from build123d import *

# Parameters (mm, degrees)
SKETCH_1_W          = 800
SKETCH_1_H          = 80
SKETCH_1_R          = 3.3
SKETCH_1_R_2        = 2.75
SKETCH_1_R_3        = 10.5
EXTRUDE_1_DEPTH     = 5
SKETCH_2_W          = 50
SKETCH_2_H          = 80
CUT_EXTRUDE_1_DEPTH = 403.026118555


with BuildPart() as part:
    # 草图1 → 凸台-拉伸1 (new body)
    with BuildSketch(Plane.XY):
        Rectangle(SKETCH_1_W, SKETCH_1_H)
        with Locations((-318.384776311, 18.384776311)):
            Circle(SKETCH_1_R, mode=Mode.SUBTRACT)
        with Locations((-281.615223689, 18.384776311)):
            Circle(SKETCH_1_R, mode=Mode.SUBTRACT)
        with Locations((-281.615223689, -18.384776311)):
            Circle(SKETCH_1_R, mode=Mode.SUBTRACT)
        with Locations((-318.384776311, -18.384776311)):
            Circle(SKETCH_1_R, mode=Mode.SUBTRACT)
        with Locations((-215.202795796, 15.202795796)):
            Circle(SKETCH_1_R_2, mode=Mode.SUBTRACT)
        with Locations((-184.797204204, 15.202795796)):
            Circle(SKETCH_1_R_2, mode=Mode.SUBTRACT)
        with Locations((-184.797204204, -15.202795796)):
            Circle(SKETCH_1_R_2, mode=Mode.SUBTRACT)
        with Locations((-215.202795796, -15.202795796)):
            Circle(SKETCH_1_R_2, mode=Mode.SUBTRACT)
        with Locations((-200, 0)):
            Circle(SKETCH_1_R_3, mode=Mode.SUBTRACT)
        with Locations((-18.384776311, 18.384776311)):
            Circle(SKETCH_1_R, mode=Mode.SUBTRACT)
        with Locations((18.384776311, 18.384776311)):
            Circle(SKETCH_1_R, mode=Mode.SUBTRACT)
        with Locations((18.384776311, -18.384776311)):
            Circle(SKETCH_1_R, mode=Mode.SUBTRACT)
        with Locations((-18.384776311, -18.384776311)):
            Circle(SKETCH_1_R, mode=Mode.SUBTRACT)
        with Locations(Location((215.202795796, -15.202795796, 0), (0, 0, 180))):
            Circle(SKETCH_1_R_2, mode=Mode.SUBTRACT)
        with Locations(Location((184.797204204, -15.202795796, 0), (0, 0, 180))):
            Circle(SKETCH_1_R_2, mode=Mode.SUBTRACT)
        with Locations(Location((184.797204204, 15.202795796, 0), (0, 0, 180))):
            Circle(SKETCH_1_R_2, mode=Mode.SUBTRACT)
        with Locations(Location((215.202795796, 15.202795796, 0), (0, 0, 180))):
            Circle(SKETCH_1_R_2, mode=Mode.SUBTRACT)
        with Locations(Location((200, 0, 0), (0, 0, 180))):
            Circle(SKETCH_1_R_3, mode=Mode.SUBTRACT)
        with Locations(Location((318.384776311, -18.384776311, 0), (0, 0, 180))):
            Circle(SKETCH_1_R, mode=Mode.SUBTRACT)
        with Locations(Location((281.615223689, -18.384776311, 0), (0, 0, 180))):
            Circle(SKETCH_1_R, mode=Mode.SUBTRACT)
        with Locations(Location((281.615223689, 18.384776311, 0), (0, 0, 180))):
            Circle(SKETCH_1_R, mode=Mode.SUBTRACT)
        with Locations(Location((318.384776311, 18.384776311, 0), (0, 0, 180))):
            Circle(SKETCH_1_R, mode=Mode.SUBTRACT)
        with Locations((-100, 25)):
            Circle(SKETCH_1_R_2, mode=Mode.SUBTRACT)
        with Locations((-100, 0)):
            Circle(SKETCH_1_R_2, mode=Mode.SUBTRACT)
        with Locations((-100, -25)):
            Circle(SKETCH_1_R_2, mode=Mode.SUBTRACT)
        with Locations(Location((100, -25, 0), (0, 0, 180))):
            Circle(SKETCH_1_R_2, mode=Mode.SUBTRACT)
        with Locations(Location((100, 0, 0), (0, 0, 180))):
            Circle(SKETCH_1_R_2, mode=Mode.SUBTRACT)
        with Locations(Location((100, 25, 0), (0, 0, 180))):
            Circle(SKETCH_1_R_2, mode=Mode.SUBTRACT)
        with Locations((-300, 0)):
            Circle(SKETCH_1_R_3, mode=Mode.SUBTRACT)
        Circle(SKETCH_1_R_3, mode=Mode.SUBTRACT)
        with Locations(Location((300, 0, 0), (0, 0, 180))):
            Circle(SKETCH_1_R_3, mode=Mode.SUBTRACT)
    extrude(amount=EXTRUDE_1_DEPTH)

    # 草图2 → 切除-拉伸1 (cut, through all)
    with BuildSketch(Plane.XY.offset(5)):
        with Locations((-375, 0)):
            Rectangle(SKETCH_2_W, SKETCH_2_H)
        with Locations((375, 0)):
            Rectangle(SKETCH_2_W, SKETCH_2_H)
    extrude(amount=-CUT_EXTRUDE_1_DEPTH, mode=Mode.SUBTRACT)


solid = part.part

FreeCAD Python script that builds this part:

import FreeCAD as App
import Part
import Sketcher

V = App.Vector
Q = App.Units.Quantity


def add_polygon(sketch, points):
    """Adds a closed chain of lines whose ends are joined by coincident constraints."""
    first, n = sketch.GeometryCount, len(points)
    for a, b in zip(points, points[1:] + points[:1]):
        sketch.addGeometry(Part.LineSegment(App.Vector(*a, 0), App.Vector(*b, 0)), False)
    for i in range(n):
        sketch.addConstraint(Sketcher.Constraint("Coincident", first + i, 2, first + (i + 1) % n, 1))

doc = App.newDocument("Part")
body = doc.addObject("PartDesign::Body", "Body")

# Sketch on XY plane
sketch1 = body.newObject("Sketcher::SketchObject", "Sketch")
sketch1.AttachmentSupport = (doc.getObject("XY_Plane"), [""])
sketch1.MapMode = "FlatFace"
add_polygon(sketch1, [(-400, 40), (-400, -40), (400, -40), (400, 40)])  # lines 0-3
sketch1.addGeometry(Part.Circle(V(-318.4, -18.4, 0), V(0, 0, 1), 3.3), False)  # 4
sketch1.addGeometry(Part.Circle(V(-281.6, -18.4, 0), V(0, 0, 1), 3.3), False)  # 5
sketch1.addGeometry(Part.Circle(V(-215.2, -15.2, 0), V(0, 0, 1), 2.8), False)  # 6
sketch1.addGeometry(Part.Circle(V(-184.8, -15.2, 0), V(0, 0, 1), 2.8), False)  # 7
sketch1.addGeometry(Part.Circle(V(-100, -25, 0), V(0, 0, 1), 2.8), False)  # 8
sketch1.addGeometry(Part.Circle(V(-18.4, -18.4, 0), V(0, 0, 1), 3.3), False)  # 9
sketch1.addGeometry(Part.Circle(V(100, -25, 0), V(0, 0, 1), 2.8), False)  # 10
sketch1.addGeometry(Part.Circle(V(18.4, -18.4, 0), V(0, 0, 1), 3.3), False)  # 11
sketch1.addGeometry(Part.Circle(V(184.8, -15.2, 0), V(0, 0, 1), 2.8), False)  # 12
sketch1.addGeometry(Part.Circle(V(215.2, -15.2, 0), V(0, 0, 1), 2.8), False)  # 13
sketch1.addGeometry(Part.Circle(V(281.6, -18.4, 0), V(0, 0, 1), 3.3), False)  # 14
sketch1.addGeometry(Part.Circle(V(318.4, -18.4, 0), V(0, 0, 1), 3.3), False)  # 15
sketch1.addGeometry(Part.Circle(V(-300, 0, 0), V(0, 0, 1), 10.5), False)  # 16
sketch1.addGeometry(Part.Circle(V(-200, 0, 0), V(0, 0, 1), 10.5), False)  # 17
sketch1.addGeometry(Part.Circle(V(-100, 0, 0), V(0, 0, 1), 2.8), False)  # 18
sketch1.addGeometry(Part.Circle(V(-318.4, 18.4, 0), V(0, 0, 1), 3.3), False)  # 19
sketch1.addGeometry(Part.Circle(V(-281.6, 18.4, 0), V(0, 0, 1), 3.3), False)  # 20
sketch1.addGeometry(Part.Circle(V(-215.2, 15.2, 0), V(0, 0, 1), 2.8), False)  # 21
sketch1.addGeometry(Part.Circle(V(-184.8, 15.2, 0), V(0, 0, 1), 2.8), False)  # 22
sketch1.addGeometry(Part.Circle(V(-18.4, 18.4, 0), V(0, 0, 1), 3.3), False)  # 23
sketch1.addGeometry(Part.Circle(V(-100, 25, 0), V(0, 0, 1), 2.8), False)  # 24
sketch1.addGeometry(Part.Circle(V(0, 0, 0), V(0, 0, 1), 10.5), False)  # 25
sketch1.addGeometry(Part.Circle(V(100, 0, 0), V(0, 0, 1), 2.8), False)  # 26
sketch1.addGeometry(Part.Circle(V(200, 0, 0), V(0, 0, 1), 10.5), False)  # 27
sketch1.addGeometry(Part.Circle(V(300, 0, 0), V(0, 0, 1), 10.5), False)  # 28
sketch1.addGeometry(Part.Circle(V(18.4, 18.4, 0), V(0, 0, 1), 3.3), False)  # 29
sketch1.addGeometry(Part.Circle(V(100, 25, 0), V(0, 0, 1), 2.8), False)  # 30
sketch1.addGeometry(Part.Circle(V(184.8, 15.2, 0), V(0, 0, 1), 2.8), False)  # 31
sketch1.addGeometry(Part.Circle(V(215.2, 15.2, 0), V(0, 0, 1), 2.8), False)  # 32
sketch1.addGeometry(Part.Circle(V(281.6, 18.4, 0), V(0, 0, 1), 3.3), False)  # 33
sketch1.addGeometry(Part.Circle(V(318.4, 18.4, 0), V(0, 0, 1), 3.3), False)  # 34
sketch1.addConstraint(Sketcher.Constraint("Vertical", 0))
sketch1.addConstraint(Sketcher.Constraint("Horizontal", 1))
sketch1.addConstraint(Sketcher.Constraint("Vertical", 2))
sketch1.addConstraint(Sketcher.Constraint("Horizontal", 3))
sketch1.addConstraint(Sketcher.Constraint("Coincident", 25, 3, -1, 1))
sketch1.addConstraint(Sketcher.Constraint("Equal", 4, 5))
sketch1.addConstraint(Sketcher.Constraint("Equal", 6, 7))
sketch1.addConstraint(Sketcher.Constraint("Equal", 7, 8))
sketch1.addConstraint(Sketcher.Constraint("Equal", 5, 9))
sketch1.addConstraint(Sketcher.Constraint("Equal", 8, 10))
sketch1.addConstraint(Sketcher.Constraint("Equal", 9, 11))
sketch1.addConstraint(Sketcher.Constraint("Equal", 10, 12))
sketch1.addConstraint(Sketcher.Constraint("Equal", 12, 13))
sketch1.addConstraint(Sketcher.Constraint("Equal", 11, 14))
sketch1.addConstraint(Sketcher.Constraint("Equal", 14, 15))
sketch1.addConstraint(Sketcher.Constraint("Equal", 16, 17))
sketch1.addConstraint(Sketcher.Constraint("Equal", 13, 18))
sketch1.addConstraint(Sketcher.Constraint("Equal", 15, 19))
sketch1.addConstraint(Sketcher.Constraint("Equal", 19, 20))
sketch1.addConstraint(Sketcher.Constraint("Equal", 18, 21))
sketch1.addConstraint(Sketcher.Constraint("Equal", 21, 22))
sketch1.addConstraint(Sketcher.Constraint("Equal", 20, 23))
sketch1.addConstraint(Sketcher.Constraint("Equal", 22, 24))
sketch1.addConstraint(Sketcher.Constraint("Equal", 17, 25))
sketch1.addConstraint(Sketcher.Constraint("Equal", 24, 26))
sketch1.addConstraint(Sketcher.Constraint("Equal", 25, 27))
sketch1.addConstraint(Sketcher.Constraint("Equal", 27, 28))
sketch1.addConstraint(Sketcher.Constraint("Equal", 23, 29))
sketch1.addConstraint(Sketcher.Constraint("Equal", 26, 30))
sketch1.addConstraint(Sketcher.Constraint("Equal", 30, 31))
sketch1.addConstraint(Sketcher.Constraint("Equal", 31, 32))
sketch1.addConstraint(Sketcher.Constraint("Equal", 29, 33))
sketch1.addConstraint(Sketcher.Constraint("Equal", 33, 34))
sketch1.addConstraint(Sketcher.Constraint("Symmetric", 15, 3, 19, 3, -1, 1))
sketch1.addConstraint(Sketcher.Constraint("Symmetric", 14, 3, 20, 3, -1, 1))
sketch1.addConstraint(Sketcher.Constraint("Symmetric", 13, 3, 21, 3, -1, 1))
sketch1.addConstraint(Sketcher.Constraint("Symmetric", 12, 3, 22, 3, -1, 1))
sketch1.addConstraint(Sketcher.Constraint("Symmetric", 11, 3, 23, 3, -1, 1))
sketch1.addConstraint(Sketcher.Constraint("Symmetric", 10, 3, 24, 3, -1, 1))
sketch1.addConstraint(Sketcher.Constraint("Symmetric", 18, 3, 26, 3, -1, 1))
sketch1.addConstraint(Sketcher.Constraint("Symmetric", 17, 3, 27, 3, -1, 1))
sketch1.addConstraint(Sketcher.Constraint("Symmetric", 16, 3, 28, 3, -1, 1))
sketch1.addConstraint(Sketcher.Constraint("Symmetric", 9, 3, 29, 3, -1, 1))
sketch1.addConstraint(Sketcher.Constraint("Symmetric", 8, 3, 30, 3, -1, 1))
sketch1.addConstraint(Sketcher.Constraint("Symmetric", 7, 3, 31, 3, -1, 1))
sketch1.addConstraint(Sketcher.Constraint("Symmetric", 6, 3, 32, 3, -1, 1))
sketch1.addConstraint(Sketcher.Constraint("Symmetric", 5, 3, 33, 3, -1, 1))
sketch1.addConstraint(Sketcher.Constraint("Symmetric", 4, 3, 34, 3, -1, 1))
sketch1.addConstraint(Sketcher.Constraint("Symmetric", 0, 2, 2, 2, -1, 1))
sketch1.addConstraint(Sketcher.Constraint("Symmetric", 8, 3, 10, 3, -2))
sketch1.addConstraint(Sketcher.Constraint("Symmetric", 9, 3, 11, 3, -2))
sketch1.addConstraint(Sketcher.Constraint("Symmetric", 7, 3, 12, 3, -2))
sketch1.addConstraint(Sketcher.Constraint("Symmetric", 6, 3, 13, 3, -2))
sketch1.addConstraint(Sketcher.Constraint("Symmetric", 5, 3, 14, 3, -2))
sketch1.addConstraint(Sketcher.Constraint("Symmetric", 4, 3, 15, 3, -2))
sketch1.addConstraint(Sketcher.Constraint("PointOnObject", 16, 3, -1))
sketch1.addConstraint(Sketcher.Constraint("PointOnObject", 17, 3, -1))
sketch1.addConstraint(Sketcher.Constraint("PointOnObject", 18, 3, -1))
sketch1.addConstraint(Sketcher.Constraint("Horizontal", 4, 3, 5, 3))
sketch1.addConstraint(Sketcher.Constraint("Horizontal", 6, 3, 7, 3))
sketch1.addConstraint(Sketcher.Constraint("Horizontal", 5, 3, 9, 3))
sketch1.addConstraint(Sketcher.Constraint("Vertical", 8, 3, 18, 3))
sketch1.addConstraint(Sketcher.Constraint("Diameter", 16, Q("21 mm")))
sketch1.addConstraint(Sketcher.Constraint("Diameter", 4, Q("6.6 mm")))
sketch1.addConstraint(Sketcher.Constraint("Diameter", 6, Q("5.5 mm")))
sketch1.addConstraint(Sketcher.Constraint("DistanceX", 1, 1, 1, 2, Q("800 mm")))
sketch1.addConstraint(Sketcher.Constraint("DistanceY", 0, 2, 0, 1, Q("80 mm")))
sketch1.addConstraint(Sketcher.Constraint("DistanceX", 8, 3, -1, 1, Q("100 mm")))
sketch1.addConstraint(Sketcher.Constraint("DistanceY", 8, 3, -1, 1, Q("25 mm")))
sketch1.addConstraint(Sketcher.Constraint("DistanceX", 16, 3, -1, 1, Q("300 mm")))
sketch1.addConstraint(Sketcher.Constraint("DistanceX", 17, 3, -1, 1, Q("200 mm")))
sketch1.addConstraint(Sketcher.Constraint("DistanceX", 4, 3, 9, 3, Q("300 mm")))
sketch1.addConstraint(Sketcher.Constraint("DistanceX", 9, 3, 14, 3, Q("300 mm")))
sketch1.addConstraint(Sketcher.Constraint("DistanceY", 5, 3, 6, 3, Q("3.181981 mm")))
sketch1.addConstraint(Sketcher.Constraint("DistanceX", 4, 3, 6, 3, Q("103.181981 mm")))
sketch1.addConstraint(Sketcher.Constraint("DistanceX", 6, 3, 7, 3, Q("30.405592 mm")))
sketch1.addConstraint(Sketcher.Constraint("DistanceX", 5, 3, 7, 3, Q("96.818019 mm")))
sketch1.addConstraint(Sketcher.Constraint("DistanceY", 6, 3, 21, 3, Q("30.405592 mm")))
pad1 = body.newObject("PartDesign::Pad", "Pad")
pad1.Profile = sketch1
pad1.Length = 5

# Sketch on XY plane
sketch2 = body.newObject("Sketcher::SketchObject", "Sketch001")
sketch2.AttachmentSupport = (doc.getObject("XY_Plane"), [""])
sketch2.MapMode = "FlatFace"
sketch2.AttachmentOffset = App.Placement(V(0, 0, 5), App.Rotation())
add_polygon(sketch2, [(-400, 40), (-400, -40), (-350, -40), (-350, 40)])  # lines 0-3
add_polygon(sketch2, [(350, 40), (350, -40), (400, -40), (400, 40)])  # lines 4-7
sketch2.addConstraint(Sketcher.Constraint("Vertical", 0))
sketch2.addConstraint(Sketcher.Constraint("Horizontal", 1))
sketch2.addConstraint(Sketcher.Constraint("Vertical", 2))
sketch2.addConstraint(Sketcher.Constraint("Horizontal", 3))
sketch2.addConstraint(Sketcher.Constraint("Vertical", 4))
sketch2.addConstraint(Sketcher.Constraint("Horizontal", 5))
sketch2.addConstraint(Sketcher.Constraint("Vertical", 6))
sketch2.addConstraint(Sketcher.Constraint("Horizontal", 7))
sketch2.addConstraint(Sketcher.Constraint("Symmetric", 2, 2, 4, 2, -1, 1))
sketch2.addConstraint(Sketcher.Constraint("Symmetric", 0, 2, 6, 2, -1, 1))
sketch2.addConstraint(Sketcher.Constraint("Horizontal", 1, 2, 4, 2))
sketch2.addConstraint(Sketcher.Constraint("DistanceX", 1, 1, 1, 2, Q("50 mm")))
sketch2.addConstraint(Sketcher.Constraint("DistanceY", 0, 2, 0, 1, Q("80 mm")))
sketch2.addConstraint(Sketcher.Constraint("DistanceX", 0, 2, -1, 1, Q("400 mm")))
pocket1 = body.newObject("PartDesign::Pocket", "Pocket")
pocket1.Profile = sketch2
pocket1.Type = "ThroughAll"

doc.recompute()
